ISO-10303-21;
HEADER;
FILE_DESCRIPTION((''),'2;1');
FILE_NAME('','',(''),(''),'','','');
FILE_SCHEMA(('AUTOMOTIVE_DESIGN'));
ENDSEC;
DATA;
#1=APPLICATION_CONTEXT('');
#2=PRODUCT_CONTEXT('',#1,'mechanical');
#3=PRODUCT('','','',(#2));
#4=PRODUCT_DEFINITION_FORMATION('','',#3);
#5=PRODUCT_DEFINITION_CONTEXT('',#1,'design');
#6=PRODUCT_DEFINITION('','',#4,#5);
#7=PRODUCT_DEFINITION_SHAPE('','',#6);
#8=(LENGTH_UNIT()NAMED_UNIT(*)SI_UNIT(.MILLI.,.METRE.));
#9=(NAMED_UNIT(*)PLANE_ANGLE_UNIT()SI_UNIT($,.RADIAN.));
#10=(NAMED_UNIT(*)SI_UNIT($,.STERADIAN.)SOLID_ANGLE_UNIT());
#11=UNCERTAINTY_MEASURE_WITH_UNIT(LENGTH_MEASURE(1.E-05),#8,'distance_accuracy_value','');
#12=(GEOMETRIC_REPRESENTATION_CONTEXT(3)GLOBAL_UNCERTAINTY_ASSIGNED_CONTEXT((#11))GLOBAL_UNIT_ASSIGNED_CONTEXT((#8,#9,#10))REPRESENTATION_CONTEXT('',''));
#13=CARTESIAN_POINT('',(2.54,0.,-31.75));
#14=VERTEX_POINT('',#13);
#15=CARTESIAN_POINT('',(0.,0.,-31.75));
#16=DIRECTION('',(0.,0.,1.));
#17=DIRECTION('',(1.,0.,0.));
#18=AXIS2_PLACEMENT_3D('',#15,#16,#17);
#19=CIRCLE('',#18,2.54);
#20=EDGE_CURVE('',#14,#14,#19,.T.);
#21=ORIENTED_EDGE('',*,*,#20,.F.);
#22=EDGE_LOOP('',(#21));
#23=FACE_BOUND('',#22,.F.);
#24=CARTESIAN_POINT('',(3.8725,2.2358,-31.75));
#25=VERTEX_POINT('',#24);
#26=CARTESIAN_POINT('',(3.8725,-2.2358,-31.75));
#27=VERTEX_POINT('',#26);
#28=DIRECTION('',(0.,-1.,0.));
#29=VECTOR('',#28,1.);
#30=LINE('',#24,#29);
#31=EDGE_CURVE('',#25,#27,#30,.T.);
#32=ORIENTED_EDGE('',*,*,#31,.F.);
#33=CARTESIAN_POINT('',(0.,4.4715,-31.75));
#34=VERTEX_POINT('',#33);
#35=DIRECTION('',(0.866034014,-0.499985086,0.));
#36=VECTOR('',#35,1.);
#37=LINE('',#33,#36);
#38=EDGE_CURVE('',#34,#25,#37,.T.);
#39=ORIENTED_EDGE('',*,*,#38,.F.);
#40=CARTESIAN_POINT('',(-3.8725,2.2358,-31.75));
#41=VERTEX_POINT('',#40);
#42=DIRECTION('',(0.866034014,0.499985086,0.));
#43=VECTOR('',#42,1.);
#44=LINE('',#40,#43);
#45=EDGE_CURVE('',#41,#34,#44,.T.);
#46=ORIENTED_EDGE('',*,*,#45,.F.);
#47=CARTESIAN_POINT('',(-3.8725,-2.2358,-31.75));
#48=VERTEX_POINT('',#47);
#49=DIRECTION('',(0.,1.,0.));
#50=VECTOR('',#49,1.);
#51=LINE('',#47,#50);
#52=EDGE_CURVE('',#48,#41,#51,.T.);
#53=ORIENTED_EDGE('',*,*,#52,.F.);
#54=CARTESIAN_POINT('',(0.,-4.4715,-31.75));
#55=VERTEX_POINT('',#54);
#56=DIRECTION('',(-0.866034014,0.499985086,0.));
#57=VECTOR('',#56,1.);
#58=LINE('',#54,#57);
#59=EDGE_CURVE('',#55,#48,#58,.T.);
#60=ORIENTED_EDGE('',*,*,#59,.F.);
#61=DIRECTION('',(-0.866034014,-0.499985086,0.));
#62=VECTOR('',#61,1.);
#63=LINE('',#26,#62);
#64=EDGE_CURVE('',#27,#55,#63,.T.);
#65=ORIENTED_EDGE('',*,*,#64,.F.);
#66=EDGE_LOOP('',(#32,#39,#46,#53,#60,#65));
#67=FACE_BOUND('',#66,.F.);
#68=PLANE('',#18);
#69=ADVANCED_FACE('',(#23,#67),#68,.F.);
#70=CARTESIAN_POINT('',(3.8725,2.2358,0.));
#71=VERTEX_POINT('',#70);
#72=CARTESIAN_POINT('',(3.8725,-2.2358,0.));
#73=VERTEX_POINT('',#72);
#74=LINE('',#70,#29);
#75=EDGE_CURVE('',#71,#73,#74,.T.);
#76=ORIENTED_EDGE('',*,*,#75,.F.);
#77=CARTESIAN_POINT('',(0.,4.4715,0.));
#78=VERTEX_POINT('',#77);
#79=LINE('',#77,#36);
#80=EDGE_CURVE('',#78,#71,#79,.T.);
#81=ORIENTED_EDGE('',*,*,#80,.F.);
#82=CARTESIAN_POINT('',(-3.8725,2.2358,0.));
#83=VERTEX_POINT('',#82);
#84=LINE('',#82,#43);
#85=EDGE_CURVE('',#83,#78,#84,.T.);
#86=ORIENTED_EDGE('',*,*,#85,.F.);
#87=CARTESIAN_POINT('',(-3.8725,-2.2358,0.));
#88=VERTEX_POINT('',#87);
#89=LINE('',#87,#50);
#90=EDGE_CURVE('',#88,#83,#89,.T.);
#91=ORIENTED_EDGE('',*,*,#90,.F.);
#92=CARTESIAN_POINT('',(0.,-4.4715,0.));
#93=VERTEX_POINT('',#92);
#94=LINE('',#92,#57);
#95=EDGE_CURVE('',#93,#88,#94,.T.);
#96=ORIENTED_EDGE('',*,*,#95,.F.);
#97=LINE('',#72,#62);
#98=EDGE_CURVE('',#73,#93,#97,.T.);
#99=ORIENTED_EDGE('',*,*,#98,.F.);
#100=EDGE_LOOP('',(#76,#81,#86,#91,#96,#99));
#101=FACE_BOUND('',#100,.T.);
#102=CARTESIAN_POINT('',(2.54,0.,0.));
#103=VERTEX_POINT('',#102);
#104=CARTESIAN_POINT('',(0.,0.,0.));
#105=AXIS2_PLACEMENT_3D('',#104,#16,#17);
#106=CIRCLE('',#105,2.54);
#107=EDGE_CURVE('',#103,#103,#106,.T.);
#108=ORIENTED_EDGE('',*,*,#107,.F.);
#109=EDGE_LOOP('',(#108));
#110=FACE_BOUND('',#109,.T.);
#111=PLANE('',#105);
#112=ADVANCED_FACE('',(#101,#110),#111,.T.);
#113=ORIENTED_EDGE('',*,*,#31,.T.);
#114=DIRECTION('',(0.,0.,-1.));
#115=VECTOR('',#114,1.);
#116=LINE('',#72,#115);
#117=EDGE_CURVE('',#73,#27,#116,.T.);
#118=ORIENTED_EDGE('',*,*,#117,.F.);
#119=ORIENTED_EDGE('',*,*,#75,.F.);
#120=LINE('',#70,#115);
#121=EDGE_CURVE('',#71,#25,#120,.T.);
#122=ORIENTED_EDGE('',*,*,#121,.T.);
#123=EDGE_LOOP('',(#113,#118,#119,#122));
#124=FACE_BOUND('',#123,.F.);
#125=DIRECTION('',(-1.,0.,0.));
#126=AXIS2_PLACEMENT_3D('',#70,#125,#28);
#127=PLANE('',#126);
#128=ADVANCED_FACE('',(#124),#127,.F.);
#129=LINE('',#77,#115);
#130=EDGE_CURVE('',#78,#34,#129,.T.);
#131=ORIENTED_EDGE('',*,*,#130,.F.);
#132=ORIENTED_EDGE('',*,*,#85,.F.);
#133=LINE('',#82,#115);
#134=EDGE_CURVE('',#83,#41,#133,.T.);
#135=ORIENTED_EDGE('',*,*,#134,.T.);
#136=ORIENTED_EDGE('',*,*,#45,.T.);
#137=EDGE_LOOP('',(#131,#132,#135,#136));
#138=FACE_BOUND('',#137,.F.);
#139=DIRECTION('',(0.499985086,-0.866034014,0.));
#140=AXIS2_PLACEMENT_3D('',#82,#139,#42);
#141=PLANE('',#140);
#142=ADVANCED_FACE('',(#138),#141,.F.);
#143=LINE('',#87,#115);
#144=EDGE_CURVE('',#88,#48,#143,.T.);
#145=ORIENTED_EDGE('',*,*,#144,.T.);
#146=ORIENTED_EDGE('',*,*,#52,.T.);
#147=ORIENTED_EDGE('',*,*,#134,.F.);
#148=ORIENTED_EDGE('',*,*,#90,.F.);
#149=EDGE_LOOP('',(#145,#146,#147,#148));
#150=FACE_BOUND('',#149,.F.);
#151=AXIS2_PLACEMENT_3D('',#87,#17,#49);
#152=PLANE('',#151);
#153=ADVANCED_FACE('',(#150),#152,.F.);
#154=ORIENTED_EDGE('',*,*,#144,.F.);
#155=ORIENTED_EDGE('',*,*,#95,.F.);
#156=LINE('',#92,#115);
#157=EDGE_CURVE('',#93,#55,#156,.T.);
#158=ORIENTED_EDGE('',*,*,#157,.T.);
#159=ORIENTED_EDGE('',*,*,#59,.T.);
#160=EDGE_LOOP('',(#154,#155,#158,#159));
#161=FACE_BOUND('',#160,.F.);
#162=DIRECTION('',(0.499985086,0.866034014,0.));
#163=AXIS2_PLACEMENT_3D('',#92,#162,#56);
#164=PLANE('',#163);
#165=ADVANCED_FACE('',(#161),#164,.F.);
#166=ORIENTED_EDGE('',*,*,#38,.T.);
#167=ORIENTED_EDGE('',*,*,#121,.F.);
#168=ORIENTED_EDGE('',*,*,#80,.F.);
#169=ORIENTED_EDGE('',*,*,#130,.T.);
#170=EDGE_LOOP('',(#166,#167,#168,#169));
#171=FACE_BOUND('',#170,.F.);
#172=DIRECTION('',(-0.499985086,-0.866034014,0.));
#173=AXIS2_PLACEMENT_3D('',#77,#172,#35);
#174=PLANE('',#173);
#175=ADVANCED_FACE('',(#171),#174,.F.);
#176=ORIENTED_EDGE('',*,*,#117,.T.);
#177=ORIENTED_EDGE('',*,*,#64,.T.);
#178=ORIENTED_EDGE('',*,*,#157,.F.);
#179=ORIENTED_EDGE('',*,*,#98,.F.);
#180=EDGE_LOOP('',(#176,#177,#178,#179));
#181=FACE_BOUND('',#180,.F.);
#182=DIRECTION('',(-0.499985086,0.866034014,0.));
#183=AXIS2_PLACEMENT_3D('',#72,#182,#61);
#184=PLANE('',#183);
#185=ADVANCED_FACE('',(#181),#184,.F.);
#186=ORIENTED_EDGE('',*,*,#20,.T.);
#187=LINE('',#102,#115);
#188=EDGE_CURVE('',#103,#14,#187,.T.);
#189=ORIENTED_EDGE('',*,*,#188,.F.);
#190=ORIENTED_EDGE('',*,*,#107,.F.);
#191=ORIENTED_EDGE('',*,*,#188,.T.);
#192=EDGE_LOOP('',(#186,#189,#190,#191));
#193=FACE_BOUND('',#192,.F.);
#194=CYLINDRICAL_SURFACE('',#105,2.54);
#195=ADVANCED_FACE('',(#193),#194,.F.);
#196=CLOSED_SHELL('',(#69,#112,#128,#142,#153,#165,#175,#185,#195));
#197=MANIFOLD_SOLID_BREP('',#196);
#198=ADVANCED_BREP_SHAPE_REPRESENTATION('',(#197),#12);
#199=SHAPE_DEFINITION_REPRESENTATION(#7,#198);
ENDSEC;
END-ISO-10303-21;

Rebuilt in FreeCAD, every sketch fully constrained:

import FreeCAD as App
import Part
import Sketcher
from FreeCAD import Vector
Q = App.Units.Quantity

doc = App.newDocument("Part")
body = doc.addObject("PartDesign::Body", "Body")

sketch1 = body.newObject("Sketcher::SketchObject", "Sketch")
sketch1.AttachmentSupport = (doc.getObject("XY_Plane"), [""])
sketch1.MapMode = "FlatFace"
sketch1.addGeometry(Part.LineSegment(Vector(3.9, 2.2, 0), Vector(0, 4.5, 0)), False)
sketch1.addGeometry(Part.LineSegment(Vector(0, 4.5, 0), Vector(-3.9, 2.2, 0)), False)
sketch1.addGeometry(Part.LineSegment(Vector(-3.9, 2.2, 0), Vector(-3.9, -2.2, 0)), False)
sketch1.addGeometry(Part.LineSegment(Vector(-3.9, -2.2, 0), Vector(0, -4.5, 0)), False)
sketch1.addGeometry(Part.LineSegment(Vector(0, -4.5, 0), Vector(3.9, -2.2, 0)), False)
sketch1.addGeometry(Part.LineSegment(Vector(3.9, -2.2, 0), Vector(3.9, 2.2, 0)), False)
sketch1.addGeometry(Part.Circle(Vector(0, 0, 0), Vector(0, 0, 1), 2.5), False)
sketch1.addConstraint(Sketcher.Constraint("Coincident", 0, 2, 1, 1))
sketch1.addConstraint(Sketcher.Constraint("Coincident", 1, 2, 2, 1))
sketch1.addConstraint(Sketcher.Constraint("Coincident", 2, 2, 3, 1))
sketch1.addConstraint(Sketcher.Constraint("Coincident", 3, 2, 4, 1))
sketch1.addConstraint(Sketcher.Constraint("Coincident", 4, 2, 5, 1))
sketch1.addConstraint(Sketcher.Constraint("Coincident", 5, 2, 0, 1))
sketch1.addConstraint(Sketcher.Constraint("Vertical", 2))
sketch1.addConstraint(Sketcher.Constraint("Vertical", 5))
sketch1.addConstraint(Sketcher.Constraint("Coincident", 6, 3, -1, 1))
sketch1.addConstraint(Sketcher.Constraint("Symmetric", 0, 2, 3, 2, -1, 1))
sketch1.addConstraint(Sketcher.Constraint("Symmetric", 1, 2, 4, 2, -1, 1))
sketch1.addConstraint(Sketcher.Constraint("PointOnObject", 0, 2, -2))
sketch1.addConstraint(Sketcher.Constraint("Parallel", 0, 3))
sketch1.addConstraint(Sketcher.Constraint("Horizontal", 2, 2, 4, 2))
sketch1.addConstraint(Sketcher.Constraint("Diameter", 6, Q("0.2 in")))
sketch1.addConstraint(Sketcher.Constraint("Angle", 0, Q("150.001 deg")))
sketch1.addConstraint(Sketcher.Constraint("DistanceY", 2, 2, 2, 1, Q("4.4716 mm")))
sketch1.addConstraint(Sketcher.Constraint("Distance", 0, Q("4.4715 mm")))
pad1 = body.newObject("PartDesign::Pad", "Pad")
pad1.Profile = sketch1
pad1.Length = Q("1.25 in")
pad1.Reversed = True

doc.recompute()
